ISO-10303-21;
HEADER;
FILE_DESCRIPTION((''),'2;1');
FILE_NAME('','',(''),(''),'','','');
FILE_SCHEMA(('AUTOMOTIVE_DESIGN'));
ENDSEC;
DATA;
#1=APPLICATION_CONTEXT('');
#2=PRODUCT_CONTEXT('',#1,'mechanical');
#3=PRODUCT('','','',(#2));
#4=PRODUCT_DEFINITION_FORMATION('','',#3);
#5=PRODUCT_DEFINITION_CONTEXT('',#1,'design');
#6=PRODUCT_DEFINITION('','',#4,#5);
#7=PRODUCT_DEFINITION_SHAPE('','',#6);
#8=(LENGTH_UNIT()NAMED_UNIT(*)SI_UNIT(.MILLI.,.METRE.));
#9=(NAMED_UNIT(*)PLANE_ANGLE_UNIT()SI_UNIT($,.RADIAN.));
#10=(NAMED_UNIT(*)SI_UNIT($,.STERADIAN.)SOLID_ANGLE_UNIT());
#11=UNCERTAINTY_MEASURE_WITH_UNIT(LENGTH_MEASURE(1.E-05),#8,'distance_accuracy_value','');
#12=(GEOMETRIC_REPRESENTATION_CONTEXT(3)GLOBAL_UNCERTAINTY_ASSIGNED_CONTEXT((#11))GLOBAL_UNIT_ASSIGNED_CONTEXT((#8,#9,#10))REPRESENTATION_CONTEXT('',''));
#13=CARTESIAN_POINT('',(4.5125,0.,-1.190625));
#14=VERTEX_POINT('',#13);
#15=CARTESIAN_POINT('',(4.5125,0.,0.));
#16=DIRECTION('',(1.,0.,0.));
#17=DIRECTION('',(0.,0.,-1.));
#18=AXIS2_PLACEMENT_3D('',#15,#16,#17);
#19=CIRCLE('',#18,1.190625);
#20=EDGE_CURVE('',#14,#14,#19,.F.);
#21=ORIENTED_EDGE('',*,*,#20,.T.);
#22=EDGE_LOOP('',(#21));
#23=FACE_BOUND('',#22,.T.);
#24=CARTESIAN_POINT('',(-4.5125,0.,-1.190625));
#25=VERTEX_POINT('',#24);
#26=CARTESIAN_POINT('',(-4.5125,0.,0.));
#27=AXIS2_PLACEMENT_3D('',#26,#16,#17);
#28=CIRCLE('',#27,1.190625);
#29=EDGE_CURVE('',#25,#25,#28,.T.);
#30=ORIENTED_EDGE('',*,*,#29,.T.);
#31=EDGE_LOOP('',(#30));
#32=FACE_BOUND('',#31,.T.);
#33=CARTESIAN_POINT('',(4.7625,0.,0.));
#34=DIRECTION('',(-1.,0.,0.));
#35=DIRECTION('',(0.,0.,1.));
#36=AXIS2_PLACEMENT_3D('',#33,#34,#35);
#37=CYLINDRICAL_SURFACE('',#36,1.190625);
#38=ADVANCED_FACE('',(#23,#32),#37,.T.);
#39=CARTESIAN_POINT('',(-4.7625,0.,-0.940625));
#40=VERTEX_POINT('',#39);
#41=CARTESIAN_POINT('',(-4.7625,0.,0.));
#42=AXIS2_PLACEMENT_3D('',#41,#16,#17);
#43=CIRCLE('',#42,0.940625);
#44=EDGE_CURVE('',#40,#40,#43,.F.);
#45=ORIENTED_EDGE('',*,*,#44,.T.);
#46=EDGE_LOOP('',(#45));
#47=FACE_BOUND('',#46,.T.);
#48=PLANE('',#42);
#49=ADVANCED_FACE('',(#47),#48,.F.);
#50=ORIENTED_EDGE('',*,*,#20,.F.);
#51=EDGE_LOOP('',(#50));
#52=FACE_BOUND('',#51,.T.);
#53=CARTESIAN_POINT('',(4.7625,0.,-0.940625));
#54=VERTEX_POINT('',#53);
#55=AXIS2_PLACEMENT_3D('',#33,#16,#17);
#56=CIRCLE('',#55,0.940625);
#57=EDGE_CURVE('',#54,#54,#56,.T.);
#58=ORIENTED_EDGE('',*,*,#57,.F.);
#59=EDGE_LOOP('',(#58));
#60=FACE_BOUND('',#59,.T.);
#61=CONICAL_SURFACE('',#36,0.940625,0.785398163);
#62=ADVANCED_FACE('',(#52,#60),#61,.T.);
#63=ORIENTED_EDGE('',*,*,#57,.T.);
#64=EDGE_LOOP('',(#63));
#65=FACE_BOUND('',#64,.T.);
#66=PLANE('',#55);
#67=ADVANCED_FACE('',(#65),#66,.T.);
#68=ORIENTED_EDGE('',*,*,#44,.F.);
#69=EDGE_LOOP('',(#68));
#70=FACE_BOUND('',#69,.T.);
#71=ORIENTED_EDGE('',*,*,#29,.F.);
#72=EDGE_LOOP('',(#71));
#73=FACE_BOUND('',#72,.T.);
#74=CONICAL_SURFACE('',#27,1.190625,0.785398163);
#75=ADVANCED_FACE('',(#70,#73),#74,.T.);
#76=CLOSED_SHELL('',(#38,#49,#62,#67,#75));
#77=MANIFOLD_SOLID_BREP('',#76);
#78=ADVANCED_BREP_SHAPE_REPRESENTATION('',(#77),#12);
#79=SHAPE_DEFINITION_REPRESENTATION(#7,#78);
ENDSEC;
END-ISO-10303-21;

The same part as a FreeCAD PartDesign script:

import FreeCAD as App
import Part
import Sketcher
Q = App.Units.Quantity


def edges_at(feature, points):
    """Names of the edges that pass closest to the given points."""
    edges = feature.Shape.Edges
    near = lambda p: min(range(len(edges)), key=lambda i: edges[i].distToShape(Part.Vertex(*p))[0])
    return sorted({f"Edge{near(p) + 1}" for p in points})

doc = App.newDocument("Part")
body = doc.addObject("PartDesign::Body", "Body")

sketch1 = doc.addObject("Sketcher::SketchObject", "Sketch")
body.addObject(sketch1)
sketch1.AttachmentSupport = (doc.YZ_Plane, [""])
sketch1.MapMode = "FlatFace"
sketch1.addGeometry(Part.Circle(App.Vector(0, 0, 0), App.Vector(0, 0, 1), 1.2), False)
sketch1.addConstraint([
    Sketcher.Constraint("Coincident", 0, 3, -1, 1),
    Sketcher.Constraint("Diameter", 0, Q("0.09375 in")),
])
pad1 = doc.addObject("PartDesign::Pad", "Pad")
body.addObject(pad1)
pad1.Profile = sketch1
pad1.Length = Q("0.375 in")
pad1.Midplane = True
doc.recompute()

chamfer = doc.addObject("PartDesign::Chamfer", "Chamfer")
body.addObject(chamfer)
chamfer.Base = (pad1, edges_at(pad1, [(-4.763, 0, 1.191), (4.763, 0, 1.191)]))
chamfer.Size = 0.25

doc.recompute()
